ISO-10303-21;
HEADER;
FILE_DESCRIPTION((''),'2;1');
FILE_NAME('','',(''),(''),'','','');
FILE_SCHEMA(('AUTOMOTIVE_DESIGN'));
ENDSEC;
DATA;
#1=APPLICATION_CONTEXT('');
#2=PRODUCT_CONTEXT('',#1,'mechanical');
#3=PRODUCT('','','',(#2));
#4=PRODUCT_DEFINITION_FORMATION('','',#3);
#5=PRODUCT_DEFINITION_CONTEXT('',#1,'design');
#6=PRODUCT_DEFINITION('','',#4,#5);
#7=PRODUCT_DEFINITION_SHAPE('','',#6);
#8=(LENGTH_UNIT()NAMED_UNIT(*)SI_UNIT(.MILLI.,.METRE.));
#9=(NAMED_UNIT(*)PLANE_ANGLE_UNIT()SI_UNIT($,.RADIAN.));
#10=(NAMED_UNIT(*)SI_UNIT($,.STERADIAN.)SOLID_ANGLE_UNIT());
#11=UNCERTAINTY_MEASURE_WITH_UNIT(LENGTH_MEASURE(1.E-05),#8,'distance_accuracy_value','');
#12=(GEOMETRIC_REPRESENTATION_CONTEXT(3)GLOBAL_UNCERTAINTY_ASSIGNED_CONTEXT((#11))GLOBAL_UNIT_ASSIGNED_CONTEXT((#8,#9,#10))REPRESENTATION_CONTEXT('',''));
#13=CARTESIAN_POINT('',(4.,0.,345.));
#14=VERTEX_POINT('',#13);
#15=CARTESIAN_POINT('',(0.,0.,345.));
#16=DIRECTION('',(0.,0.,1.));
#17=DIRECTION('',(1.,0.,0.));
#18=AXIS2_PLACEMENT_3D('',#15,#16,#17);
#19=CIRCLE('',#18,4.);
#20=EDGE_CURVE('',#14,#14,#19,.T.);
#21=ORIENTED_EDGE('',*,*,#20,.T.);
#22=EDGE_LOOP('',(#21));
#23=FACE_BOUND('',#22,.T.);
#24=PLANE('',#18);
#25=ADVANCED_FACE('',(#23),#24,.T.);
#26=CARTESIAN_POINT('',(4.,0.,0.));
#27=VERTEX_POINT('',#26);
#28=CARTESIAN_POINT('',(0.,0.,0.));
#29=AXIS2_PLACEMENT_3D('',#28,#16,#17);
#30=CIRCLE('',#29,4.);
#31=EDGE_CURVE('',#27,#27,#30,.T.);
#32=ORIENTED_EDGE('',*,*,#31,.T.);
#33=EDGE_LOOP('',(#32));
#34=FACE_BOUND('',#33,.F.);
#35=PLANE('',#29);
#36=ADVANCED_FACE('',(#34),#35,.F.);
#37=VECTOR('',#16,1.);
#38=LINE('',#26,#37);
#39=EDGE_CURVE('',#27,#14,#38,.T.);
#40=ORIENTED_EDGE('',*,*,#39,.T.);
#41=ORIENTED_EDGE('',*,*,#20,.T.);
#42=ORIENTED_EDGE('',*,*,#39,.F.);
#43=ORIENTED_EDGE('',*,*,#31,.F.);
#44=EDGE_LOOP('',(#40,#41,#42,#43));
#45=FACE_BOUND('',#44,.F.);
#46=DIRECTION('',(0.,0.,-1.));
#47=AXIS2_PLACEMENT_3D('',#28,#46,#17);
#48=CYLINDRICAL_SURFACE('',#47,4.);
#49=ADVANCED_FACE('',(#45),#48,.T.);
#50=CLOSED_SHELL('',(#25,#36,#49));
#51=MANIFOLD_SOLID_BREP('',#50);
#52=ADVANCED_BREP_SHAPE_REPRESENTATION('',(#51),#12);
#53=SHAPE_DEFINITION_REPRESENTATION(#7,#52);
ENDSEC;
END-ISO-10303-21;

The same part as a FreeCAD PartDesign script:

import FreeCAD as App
import Part
import Sketcher

V = App.Vector
Q = App.Units.Quantity

doc = App.newDocument("Part")
body = doc.addObject("PartDesign::Body", "Body")

# Sketch on XY plane
sketch1 = body.newObject("Sketcher::SketchObject", "Sketch")
sketch1.AttachmentSupport = (doc.getObject("XY_Plane"), [""])
sketch1.MapMode = "FlatFace"
sketch1.addGeometry(Part.Circle(V(0, 0, 0), V(0, 0, 1), 4), False)
sketch1.addConstraint([
    Sketcher.Constraint("Coincident", 0, 3, -1, 1),
    Sketcher.Constraint("Diameter", 0, Q("8 mm")),
])
pad1 = body.newObject("PartDesign::Pad", "Pad")
pad1.Profile = sketch1
pad1.Length = 345

doc.recompute()
